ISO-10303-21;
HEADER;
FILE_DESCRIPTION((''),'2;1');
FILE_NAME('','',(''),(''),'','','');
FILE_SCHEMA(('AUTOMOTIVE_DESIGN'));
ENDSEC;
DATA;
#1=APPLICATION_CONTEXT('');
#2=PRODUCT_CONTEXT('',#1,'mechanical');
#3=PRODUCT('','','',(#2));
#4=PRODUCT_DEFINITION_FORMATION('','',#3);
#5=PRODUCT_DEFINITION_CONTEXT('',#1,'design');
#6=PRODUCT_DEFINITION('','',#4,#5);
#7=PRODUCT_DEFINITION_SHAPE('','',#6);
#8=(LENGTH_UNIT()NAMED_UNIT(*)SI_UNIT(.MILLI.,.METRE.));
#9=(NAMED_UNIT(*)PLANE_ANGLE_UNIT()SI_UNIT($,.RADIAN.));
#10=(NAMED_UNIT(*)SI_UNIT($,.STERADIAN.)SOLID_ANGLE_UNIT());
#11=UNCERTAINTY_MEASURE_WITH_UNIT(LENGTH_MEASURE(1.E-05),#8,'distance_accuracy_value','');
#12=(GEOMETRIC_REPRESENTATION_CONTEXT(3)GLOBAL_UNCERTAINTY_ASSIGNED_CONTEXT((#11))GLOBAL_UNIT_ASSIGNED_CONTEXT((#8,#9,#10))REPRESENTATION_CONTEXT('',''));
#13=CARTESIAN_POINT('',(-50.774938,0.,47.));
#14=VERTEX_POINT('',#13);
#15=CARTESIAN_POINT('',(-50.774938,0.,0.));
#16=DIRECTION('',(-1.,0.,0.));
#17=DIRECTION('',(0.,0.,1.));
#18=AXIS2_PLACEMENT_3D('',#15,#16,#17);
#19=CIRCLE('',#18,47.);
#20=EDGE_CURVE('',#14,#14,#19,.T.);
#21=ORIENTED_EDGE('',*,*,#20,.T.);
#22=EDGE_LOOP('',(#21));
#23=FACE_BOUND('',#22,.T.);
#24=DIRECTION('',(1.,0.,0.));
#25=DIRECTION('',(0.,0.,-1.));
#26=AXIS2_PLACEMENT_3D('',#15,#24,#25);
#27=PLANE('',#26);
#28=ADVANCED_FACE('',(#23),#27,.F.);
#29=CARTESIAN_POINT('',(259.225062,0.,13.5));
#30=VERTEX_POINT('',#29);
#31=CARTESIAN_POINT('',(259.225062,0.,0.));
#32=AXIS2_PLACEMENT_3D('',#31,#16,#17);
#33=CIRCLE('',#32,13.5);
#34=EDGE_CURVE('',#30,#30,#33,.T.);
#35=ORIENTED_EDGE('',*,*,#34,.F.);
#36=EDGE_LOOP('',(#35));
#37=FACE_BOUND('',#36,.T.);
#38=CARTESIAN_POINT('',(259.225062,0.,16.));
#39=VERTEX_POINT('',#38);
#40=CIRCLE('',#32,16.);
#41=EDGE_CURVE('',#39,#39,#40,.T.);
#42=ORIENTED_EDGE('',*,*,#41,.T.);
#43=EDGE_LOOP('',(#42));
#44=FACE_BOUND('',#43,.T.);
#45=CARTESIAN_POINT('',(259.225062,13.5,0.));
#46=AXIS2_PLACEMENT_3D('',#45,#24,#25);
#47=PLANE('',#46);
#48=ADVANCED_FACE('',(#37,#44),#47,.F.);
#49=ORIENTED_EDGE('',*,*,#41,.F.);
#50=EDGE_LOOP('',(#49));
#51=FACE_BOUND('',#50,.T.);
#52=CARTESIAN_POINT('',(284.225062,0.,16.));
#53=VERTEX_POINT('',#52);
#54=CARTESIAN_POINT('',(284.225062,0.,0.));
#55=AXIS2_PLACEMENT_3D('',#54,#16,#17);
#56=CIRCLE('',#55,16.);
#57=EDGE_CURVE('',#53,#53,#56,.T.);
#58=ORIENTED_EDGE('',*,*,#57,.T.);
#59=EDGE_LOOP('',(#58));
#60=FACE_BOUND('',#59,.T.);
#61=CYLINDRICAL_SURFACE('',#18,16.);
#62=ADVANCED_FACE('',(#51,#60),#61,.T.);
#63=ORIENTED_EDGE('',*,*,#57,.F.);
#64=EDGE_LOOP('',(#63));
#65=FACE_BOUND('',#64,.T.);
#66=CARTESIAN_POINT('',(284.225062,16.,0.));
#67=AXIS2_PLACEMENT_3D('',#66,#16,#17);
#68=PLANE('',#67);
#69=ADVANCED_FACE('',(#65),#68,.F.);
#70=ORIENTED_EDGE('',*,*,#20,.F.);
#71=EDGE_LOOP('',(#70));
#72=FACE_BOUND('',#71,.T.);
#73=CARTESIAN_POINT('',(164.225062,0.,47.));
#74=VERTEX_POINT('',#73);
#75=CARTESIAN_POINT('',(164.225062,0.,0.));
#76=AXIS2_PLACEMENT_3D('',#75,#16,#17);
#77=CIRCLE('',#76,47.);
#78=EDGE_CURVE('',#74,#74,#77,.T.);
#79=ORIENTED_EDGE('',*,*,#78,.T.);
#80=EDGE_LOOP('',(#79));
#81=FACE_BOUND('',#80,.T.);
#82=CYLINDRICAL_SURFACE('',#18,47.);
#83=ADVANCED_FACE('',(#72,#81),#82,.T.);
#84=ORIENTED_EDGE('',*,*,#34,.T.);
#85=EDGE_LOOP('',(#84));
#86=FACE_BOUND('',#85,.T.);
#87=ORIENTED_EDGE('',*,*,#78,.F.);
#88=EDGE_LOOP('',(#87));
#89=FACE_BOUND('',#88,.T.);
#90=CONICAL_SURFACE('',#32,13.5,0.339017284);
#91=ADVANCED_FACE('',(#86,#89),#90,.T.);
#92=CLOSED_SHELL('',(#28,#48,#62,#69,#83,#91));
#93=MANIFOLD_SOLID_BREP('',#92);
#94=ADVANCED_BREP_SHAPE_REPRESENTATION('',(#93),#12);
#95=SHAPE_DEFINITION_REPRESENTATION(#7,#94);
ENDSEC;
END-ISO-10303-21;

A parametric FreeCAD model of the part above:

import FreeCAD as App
import Part
import Sketcher
from FreeCAD import Vector


def add_polygon(sketch, points):
    """Adds a closed chain of lines whose ends are joined by coincident constraints."""
    first, n = sketch.GeometryCount, len(points)
    for a, b in zip(points, points[1:] + points[:1]):
        sketch.addGeometry(Part.LineSegment(App.Vector(*a, 0), App.Vector(*b, 0)), False)
    for i in range(n):
        sketch.addConstraint(Sketcher.Constraint("Coincident", first + i, 2, first + (i + 1) % n, 1))

doc = App.newDocument("Part")
body = doc.addObject("PartDesign::Body", "Body")

# Sketch on XY plane
sketch1 = body.newObject("Sketcher::SketchObject", "Sketch")
sketch1.AttachmentSupport = (doc.getObject("XY_Plane"), [""])
sketch1.MapMode = "FlatFace"
add_polygon(sketch1, [(-50.8, 47), (-50.8, 0), (284.2, 0), (284.2, 16), (259.2, 16), (259.2, 13.5), (164.2, 47)])  # lines 0-6
sketch1.addConstraint([
    Sketcher.Constraint("Vertical", 0),
    Sketcher.Constraint("Horizontal", 1),
    Sketcher.Constraint("Vertical", 2),
    Sketcher.Constraint("Horizontal", 3),
    Sketcher.Constraint("Vertical", 4),
    Sketcher.Constraint("Horizontal", 6),
    Sketcher.Constraint("PointOnObject", 0, 2, -1),
    Sketcher.Constraint("DistanceX", 1, 1, 1, 2, 335.0),
    Sketcher.Constraint("DistanceX", 3, 2, 3, 1, 25.0),
    Sketcher.Constraint("DistanceX", 6, 2, 6, 1, 215.0),
    Sketcher.Constraint("DistanceY", 0, 2, 0, 1, 47.0),
    Sketcher.Constraint("DistanceY", 2, 1, 2, 2, 16.0),
    Sketcher.Constraint("DistanceY", 4, 2, 4, 1, 2.5),
    Sketcher.Constraint("DistanceX", 0, 2, -1, 1, 50.774938),
])
revolution = body.newObject("PartDesign::Revolution", "Revolution")
revolution.Profile = sketch1
revolution.ReferenceAxis = (sketch1, ["H_Axis"])
revolution.Angle = 360

doc.recompute()
